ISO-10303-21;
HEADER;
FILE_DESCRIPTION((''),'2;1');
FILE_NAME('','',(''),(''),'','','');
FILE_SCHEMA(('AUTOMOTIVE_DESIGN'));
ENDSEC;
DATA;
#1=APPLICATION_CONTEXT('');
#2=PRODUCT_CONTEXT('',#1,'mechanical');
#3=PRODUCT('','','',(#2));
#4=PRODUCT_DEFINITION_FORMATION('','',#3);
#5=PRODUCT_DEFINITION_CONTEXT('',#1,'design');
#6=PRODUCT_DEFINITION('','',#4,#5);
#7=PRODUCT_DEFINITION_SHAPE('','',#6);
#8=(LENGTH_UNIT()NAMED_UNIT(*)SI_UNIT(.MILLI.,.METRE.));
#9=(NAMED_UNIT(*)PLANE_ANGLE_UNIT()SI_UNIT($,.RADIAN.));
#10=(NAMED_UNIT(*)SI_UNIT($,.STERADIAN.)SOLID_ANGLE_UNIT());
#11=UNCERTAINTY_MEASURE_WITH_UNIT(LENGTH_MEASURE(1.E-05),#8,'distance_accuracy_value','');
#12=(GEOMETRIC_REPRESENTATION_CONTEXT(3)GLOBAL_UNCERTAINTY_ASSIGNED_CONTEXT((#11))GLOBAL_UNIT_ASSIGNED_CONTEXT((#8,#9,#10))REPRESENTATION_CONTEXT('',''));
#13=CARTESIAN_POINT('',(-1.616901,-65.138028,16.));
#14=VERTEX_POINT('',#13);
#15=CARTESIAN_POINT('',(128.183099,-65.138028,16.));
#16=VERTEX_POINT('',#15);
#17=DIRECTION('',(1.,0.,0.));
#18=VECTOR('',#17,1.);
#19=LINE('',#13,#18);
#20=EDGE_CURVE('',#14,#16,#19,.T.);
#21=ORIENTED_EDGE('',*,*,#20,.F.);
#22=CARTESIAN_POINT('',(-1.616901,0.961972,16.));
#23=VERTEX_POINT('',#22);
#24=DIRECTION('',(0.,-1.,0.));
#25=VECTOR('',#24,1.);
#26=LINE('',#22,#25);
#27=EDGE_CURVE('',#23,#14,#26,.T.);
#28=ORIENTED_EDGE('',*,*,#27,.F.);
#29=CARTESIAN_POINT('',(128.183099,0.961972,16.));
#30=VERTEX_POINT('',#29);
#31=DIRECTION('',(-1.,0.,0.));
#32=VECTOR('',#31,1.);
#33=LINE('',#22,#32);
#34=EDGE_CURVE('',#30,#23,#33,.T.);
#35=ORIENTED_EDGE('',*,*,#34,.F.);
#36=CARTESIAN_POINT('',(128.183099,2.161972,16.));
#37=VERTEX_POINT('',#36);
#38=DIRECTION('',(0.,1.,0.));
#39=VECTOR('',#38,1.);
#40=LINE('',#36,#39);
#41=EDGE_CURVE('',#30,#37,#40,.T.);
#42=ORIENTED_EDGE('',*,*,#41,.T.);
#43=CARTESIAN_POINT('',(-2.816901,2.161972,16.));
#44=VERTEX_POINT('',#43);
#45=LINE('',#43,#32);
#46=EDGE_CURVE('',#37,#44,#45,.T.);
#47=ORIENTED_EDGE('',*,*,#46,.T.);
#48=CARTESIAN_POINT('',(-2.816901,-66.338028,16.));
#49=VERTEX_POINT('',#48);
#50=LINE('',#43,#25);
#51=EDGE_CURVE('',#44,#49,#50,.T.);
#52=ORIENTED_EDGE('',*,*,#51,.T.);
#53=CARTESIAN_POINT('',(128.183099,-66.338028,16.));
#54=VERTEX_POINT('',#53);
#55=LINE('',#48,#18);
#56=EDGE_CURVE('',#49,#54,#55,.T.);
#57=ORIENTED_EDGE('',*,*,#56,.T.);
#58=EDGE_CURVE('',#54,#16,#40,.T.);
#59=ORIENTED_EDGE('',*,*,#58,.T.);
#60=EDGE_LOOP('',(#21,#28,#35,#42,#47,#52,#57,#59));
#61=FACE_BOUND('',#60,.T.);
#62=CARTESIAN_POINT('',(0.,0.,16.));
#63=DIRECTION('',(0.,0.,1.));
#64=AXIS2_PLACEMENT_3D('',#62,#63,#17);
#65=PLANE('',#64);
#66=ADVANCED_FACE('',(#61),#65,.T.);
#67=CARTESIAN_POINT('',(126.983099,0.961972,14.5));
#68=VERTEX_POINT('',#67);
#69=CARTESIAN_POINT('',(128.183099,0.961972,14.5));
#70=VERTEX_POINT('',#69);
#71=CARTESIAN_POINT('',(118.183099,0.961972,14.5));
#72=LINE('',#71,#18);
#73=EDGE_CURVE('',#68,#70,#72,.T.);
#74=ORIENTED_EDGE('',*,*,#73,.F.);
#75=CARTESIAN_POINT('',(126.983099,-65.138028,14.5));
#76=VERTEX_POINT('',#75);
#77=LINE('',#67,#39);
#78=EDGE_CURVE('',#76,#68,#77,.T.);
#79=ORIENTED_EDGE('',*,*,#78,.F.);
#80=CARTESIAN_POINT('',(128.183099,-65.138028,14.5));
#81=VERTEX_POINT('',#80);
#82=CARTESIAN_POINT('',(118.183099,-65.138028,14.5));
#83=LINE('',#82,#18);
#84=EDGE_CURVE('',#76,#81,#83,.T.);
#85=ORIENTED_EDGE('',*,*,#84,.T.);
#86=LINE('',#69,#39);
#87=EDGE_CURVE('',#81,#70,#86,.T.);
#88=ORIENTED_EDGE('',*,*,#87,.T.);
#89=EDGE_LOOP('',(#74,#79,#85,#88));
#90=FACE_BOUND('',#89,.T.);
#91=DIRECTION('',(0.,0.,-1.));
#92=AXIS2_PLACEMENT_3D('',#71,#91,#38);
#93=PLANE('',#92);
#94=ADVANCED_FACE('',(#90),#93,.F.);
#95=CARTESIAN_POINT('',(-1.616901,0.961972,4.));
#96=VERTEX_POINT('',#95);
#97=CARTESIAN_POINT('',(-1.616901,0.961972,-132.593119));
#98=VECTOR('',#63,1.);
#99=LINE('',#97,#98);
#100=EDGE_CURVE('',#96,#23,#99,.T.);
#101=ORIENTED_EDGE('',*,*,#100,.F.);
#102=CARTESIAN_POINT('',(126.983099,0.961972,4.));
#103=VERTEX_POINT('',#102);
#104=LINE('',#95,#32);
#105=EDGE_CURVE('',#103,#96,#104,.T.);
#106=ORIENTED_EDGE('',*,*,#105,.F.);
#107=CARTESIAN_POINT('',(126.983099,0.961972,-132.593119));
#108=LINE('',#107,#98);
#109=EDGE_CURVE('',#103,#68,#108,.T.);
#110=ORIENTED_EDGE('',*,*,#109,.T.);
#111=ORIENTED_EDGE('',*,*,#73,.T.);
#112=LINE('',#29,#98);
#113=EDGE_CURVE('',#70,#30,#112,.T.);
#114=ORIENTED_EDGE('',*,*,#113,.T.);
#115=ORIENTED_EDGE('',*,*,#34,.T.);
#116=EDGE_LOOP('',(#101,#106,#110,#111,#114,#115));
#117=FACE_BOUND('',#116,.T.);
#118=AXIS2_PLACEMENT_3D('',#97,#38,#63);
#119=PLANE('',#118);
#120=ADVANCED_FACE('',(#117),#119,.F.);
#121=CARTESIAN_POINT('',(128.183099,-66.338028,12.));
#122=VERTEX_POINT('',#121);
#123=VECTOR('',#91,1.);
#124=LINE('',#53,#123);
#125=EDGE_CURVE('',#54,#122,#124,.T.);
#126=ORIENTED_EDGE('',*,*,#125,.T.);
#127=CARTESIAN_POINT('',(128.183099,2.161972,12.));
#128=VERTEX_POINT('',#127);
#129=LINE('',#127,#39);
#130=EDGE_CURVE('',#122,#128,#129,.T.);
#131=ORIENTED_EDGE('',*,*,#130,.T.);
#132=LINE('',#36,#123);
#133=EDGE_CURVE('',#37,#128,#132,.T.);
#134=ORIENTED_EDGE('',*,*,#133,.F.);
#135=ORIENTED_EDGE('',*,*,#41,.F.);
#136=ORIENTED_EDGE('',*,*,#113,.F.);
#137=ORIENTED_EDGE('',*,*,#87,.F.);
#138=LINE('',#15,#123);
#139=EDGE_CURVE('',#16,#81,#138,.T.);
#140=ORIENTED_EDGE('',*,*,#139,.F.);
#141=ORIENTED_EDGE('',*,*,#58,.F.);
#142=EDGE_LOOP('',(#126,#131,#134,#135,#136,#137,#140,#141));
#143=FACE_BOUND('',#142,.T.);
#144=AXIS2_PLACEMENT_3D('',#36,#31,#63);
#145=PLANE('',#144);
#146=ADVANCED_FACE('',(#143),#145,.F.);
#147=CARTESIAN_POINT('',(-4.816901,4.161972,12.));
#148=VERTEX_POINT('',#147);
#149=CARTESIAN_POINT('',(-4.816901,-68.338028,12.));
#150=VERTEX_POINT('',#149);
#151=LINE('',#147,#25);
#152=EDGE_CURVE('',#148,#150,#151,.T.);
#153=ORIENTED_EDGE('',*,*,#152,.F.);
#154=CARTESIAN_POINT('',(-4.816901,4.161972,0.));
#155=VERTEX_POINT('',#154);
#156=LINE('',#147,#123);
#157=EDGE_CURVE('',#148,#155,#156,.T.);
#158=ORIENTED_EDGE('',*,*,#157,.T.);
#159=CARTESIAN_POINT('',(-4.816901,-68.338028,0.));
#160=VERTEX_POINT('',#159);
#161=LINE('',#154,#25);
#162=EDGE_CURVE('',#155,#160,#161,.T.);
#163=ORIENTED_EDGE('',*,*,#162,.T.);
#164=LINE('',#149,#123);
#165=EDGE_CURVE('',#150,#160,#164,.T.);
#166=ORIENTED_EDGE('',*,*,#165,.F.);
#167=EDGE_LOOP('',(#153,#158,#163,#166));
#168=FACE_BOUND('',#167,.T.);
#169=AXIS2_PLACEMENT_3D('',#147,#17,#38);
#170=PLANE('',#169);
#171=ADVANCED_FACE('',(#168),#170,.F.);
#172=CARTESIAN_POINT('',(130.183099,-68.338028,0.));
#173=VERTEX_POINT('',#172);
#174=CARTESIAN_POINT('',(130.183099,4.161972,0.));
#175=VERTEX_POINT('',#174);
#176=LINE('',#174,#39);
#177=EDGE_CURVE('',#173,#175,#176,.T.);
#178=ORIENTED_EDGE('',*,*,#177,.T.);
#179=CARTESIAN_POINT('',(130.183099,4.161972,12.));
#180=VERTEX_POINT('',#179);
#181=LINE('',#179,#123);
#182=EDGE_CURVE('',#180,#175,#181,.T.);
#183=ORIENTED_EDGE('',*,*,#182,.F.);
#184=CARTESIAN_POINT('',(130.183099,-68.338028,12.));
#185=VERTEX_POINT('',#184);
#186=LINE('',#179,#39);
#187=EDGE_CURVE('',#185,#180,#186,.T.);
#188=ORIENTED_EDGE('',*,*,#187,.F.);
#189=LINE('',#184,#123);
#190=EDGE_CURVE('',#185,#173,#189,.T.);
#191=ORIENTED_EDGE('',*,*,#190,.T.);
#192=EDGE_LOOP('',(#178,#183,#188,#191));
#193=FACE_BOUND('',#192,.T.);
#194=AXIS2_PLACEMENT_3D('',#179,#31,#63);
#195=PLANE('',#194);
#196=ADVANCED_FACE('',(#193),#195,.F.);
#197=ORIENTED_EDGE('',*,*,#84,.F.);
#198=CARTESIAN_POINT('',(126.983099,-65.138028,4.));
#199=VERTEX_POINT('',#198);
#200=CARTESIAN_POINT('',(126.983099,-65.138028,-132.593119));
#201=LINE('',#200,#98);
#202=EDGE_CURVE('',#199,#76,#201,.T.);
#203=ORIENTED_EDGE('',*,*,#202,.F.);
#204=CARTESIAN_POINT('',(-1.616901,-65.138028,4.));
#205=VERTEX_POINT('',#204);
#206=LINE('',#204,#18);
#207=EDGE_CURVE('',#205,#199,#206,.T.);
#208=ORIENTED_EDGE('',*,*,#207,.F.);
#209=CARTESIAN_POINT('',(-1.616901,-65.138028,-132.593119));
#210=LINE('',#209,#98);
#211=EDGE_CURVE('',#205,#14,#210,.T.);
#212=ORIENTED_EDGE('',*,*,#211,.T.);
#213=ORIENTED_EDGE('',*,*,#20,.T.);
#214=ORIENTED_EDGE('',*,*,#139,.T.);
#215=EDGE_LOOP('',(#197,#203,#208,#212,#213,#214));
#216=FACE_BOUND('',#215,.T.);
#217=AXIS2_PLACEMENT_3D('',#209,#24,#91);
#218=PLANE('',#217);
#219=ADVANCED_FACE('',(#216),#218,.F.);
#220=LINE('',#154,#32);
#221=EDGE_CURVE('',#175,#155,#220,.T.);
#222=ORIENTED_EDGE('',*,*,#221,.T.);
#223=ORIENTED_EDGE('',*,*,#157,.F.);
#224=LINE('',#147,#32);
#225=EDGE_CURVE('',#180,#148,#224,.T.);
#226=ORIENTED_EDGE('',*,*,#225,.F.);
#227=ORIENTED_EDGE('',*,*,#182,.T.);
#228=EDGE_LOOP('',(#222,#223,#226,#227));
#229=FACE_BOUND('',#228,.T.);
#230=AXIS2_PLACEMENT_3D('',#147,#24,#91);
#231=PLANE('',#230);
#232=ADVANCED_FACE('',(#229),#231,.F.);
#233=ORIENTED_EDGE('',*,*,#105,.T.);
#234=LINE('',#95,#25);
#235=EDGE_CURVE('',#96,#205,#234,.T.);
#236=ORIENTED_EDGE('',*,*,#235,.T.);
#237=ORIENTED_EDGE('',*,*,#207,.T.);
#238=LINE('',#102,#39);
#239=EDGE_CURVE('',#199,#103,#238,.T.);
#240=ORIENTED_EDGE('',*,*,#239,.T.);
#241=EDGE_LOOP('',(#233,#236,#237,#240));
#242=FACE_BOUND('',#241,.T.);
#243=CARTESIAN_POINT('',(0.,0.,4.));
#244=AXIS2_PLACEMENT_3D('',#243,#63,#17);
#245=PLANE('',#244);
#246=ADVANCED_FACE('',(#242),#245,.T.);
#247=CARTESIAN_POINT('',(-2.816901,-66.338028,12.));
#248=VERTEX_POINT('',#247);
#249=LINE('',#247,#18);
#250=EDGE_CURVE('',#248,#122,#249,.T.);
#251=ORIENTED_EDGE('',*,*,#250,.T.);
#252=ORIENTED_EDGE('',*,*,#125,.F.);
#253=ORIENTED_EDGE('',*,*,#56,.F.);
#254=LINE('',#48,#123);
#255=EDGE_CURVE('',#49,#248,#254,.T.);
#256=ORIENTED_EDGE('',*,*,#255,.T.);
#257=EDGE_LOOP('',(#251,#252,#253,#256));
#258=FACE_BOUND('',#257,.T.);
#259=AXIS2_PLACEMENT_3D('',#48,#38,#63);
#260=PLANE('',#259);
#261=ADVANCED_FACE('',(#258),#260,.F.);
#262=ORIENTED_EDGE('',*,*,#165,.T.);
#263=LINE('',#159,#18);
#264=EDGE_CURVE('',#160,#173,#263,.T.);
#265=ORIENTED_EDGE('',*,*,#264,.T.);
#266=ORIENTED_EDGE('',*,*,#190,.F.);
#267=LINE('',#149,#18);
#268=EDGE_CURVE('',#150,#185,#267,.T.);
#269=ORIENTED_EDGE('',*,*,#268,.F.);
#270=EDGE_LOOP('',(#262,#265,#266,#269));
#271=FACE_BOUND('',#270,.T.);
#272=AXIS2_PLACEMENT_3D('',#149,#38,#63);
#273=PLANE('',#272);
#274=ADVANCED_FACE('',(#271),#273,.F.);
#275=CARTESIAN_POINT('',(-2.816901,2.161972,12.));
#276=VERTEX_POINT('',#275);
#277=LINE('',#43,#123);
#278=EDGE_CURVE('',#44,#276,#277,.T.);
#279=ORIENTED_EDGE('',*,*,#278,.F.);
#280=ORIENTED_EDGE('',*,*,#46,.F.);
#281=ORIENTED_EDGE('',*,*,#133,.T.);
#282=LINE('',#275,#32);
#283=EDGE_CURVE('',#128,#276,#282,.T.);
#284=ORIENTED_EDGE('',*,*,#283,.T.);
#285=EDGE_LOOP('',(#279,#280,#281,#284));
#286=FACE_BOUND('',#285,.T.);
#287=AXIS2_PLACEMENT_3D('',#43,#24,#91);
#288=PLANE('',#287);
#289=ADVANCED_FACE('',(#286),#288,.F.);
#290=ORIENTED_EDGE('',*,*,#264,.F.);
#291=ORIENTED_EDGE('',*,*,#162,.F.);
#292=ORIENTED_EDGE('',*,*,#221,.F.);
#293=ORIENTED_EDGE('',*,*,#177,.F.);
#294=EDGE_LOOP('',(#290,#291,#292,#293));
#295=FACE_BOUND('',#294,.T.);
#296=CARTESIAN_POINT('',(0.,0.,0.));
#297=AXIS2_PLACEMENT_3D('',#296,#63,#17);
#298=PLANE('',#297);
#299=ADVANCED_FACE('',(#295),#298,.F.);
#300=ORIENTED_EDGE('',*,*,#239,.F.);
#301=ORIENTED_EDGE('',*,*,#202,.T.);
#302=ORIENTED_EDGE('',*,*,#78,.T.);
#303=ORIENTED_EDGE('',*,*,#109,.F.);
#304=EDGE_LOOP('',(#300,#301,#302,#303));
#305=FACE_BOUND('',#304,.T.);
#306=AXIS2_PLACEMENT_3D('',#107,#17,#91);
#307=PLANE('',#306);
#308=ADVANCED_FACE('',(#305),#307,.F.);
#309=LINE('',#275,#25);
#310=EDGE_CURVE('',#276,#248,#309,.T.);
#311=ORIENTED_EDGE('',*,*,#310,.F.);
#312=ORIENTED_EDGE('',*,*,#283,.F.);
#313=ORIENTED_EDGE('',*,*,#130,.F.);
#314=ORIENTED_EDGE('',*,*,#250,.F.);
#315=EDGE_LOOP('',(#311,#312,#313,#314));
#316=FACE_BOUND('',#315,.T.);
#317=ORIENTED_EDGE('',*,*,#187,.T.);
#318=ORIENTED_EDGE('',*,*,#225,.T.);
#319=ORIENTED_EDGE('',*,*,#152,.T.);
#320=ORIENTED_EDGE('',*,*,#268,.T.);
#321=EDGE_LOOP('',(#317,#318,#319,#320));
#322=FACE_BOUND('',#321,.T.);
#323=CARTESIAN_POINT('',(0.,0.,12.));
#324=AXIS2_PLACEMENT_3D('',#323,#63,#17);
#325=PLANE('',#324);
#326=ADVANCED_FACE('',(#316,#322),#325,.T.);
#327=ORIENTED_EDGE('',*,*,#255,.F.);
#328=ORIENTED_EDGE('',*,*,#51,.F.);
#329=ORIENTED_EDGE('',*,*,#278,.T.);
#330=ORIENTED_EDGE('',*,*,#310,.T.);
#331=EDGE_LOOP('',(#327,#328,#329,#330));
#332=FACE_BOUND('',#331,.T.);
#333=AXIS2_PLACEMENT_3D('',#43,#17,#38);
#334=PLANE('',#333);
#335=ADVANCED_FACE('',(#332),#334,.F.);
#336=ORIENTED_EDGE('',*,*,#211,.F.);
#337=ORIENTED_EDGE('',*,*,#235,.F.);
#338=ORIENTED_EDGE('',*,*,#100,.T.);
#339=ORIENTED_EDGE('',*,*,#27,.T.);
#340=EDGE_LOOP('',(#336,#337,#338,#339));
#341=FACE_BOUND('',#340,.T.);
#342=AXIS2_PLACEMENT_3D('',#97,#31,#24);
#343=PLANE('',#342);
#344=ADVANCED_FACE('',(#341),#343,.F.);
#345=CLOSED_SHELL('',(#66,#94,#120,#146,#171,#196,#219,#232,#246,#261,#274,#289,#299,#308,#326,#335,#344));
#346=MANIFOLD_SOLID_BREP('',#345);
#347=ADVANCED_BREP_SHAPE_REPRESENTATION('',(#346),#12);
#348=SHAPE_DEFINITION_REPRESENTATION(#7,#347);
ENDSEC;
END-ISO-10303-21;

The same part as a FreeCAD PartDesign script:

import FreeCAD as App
import Part
import Sketcher
Q = App.Units.Quantity


def add_polygon(sketch, points):
    """Adds a closed chain of lines whose ends are joined by coincident constraints."""
    first, n = sketch.GeometryCount, len(points)
    for a, b in zip(points, points[1:] + points[:1]):
        sketch.addGeometry(Part.LineSegment(App.Vector(*a, 0), App.Vector(*b, 0)), False)
    for i in range(n):
        sketch.addConstraint(Sketcher.Constraint("Coincident", first + i, 2, first + (i + 1) % n, 1))

doc = App.newDocument("Part")
body = doc.addObject("PartDesign::Body", "Body")

sketch1 = body.newObject("Sketcher::SketchObject", "Sketch")
sketch1.AttachmentSupport = (doc.getObject("XY_Plane"), [""])
sketch1.MapMode = "FlatFace"
add_polygon(sketch1, [(-5, 4), (-5, -68), (130, -68), (130, 4)])
sketch1.addConstraint([
    Sketcher.Constraint("Vertical", 0),
    Sketcher.Constraint("Horizontal", 1),
    Sketcher.Constraint("Vertical", 2),
    Sketcher.Constraint("Horizontal", 3),
    Sketcher.Constraint("DistanceX", 1, 1, 1, 2, Q("135 mm")),
    Sketcher.Constraint("DistanceY", 0, 2, 0, 1, Q("72.5 mm")),
    Sketcher.Constraint("DistanceX", 0, 2, -1, 1, Q("4.816901 mm")),
    Sketcher.Constraint("DistanceY", 0, 2, -1, 1, Q("68.338028 mm")),
])
pad1 = body.newObject("PartDesign::Pad", "Pad")
pad1.Profile = sketch1
pad1.Length = 12

sketch2 = body.newObject("Sketcher::SketchObject", "Sketch001")
sketch2.AttachmentSupport = (doc.getObject("XY_Plane"), [""])
sketch2.MapMode = "FlatFace"
sketch2.AttachmentOffset = App.Placement(App.Vector(0, 0, 12), App.Rotation())
add_polygon(sketch2, [(-3, 2), (-3, -66), (128, -66), (128, 2)])
sketch2.addConstraint([
    Sketcher.Constraint("Vertical", 0),
    Sketcher.Constraint("Horizontal", 1),
    Sketcher.Constraint("Vertical", 2),
    Sketcher.Constraint("Horizontal", 3),
    Sketcher.Constraint("DistanceX", 1, 1, 1, 2, Q("131 mm")),
    Sketcher.Constraint("DistanceY", 0, 2, 0, 1, Q("68.5 mm")),
    Sketcher.Constraint("DistanceX", 0, 2, -1, 1, Q("2.816901 mm")),
    Sketcher.Constraint("DistanceY", 0, 2, -1, 1, Q("66.338028 mm")),
])
pad2 = body.newObject("PartDesign::Pad", "Pad001")
pad2.Profile = sketch2
pad2.Length = 4

sketch3 = body.newObject("Sketcher::SketchObject", "Sketch002")
sketch3.AttachmentSupport = (doc.getObject("XY_Plane"), [""])
sketch3.MapMode = "FlatFace"
sketch3.AttachmentOffset = App.Placement(App.Vector(0, 0, 16), App.Rotation())
add_polygon(sketch3, [(-2, 1), (-2, -65), (127, -65), (127, 1)])
sketch3.addConstraint([
    Sketcher.Constraint("Vertical", 0),
    Sketcher.Constraint("Horizontal", 1),
    Sketcher.Constraint("Vertical", 2),
    Sketcher.Constraint("Horizontal", 3),
    Sketcher.Constraint("DistanceX", 1, 1, 1, 2, Q("128.6 mm")),
    Sketcher.Constraint("DistanceY", 0, 2, 0, 1, Q("66.1 mm")),
    Sketcher.Constraint("DistanceX", 0, 2, -1, 1, Q("1.616901 mm")),
    Sketcher.Constraint("DistanceY", 0, 2, -1, 1, Q("65.138028 mm")),
])
pocket1 = body.newObject("PartDesign::Pocket", "Pocket")
pocket1.Profile = sketch3
pocket1.Length = 4

sketch4 = body.newObject("Sketcher::SketchObject", "Sketch003")
sketch4.AttachmentSupport = (doc.getObject("XY_Plane"), [""])
sketch4.MapMode = "FlatFace"
sketch4.AttachmentOffset = App.Placement(App.Vector(0, 0, 12), App.Rotation())
add_polygon(sketch4, [(-2, 1), (-2, -65), (127, -65), (127, 1)])
sketch4.addConstraint([
    Sketcher.Constraint("Vertical", 0),
    Sketcher.Constraint("Horizontal", 1),
    Sketcher.Constraint("Vertical", 2),
    Sketcher.Constraint("Horizontal", 3),
    Sketcher.Constraint("DistanceX", 1, 1, 1, 2, Q("128.6 mm")),
    Sketcher.Constraint("DistanceY", 0, 2, 0, 1, Q("66.1 mm")),
    Sketcher.Constraint("DistanceX", 0, 2, -1, 1, Q("1.616901 mm")),
    Sketcher.Constraint("DistanceY", 0, 2, -1, 1, Q("65.138028 mm")),
])
pocket2 = body.newObject("PartDesign::Pocket", "Pocket001")
pocket2.Profile = sketch4
pocket2.Length = 8

sketch5 = body.newObject("Sketcher::SketchObject", "Sketch004")
sketch5.AttachmentSupport = (doc.getObject("YZ_Plane"), [""])
sketch5.MapMode = "FlatFace"
sketch5.AttachmentOffset = App.Placement(App.Vector(0, 0, 128.183099), App.Rotation())
add_polygon(sketch5, [(1, 16), (-65.1, 16), (-65.1, 14.5), (1, 14.5)])
sketch5.addConstraint([
    Sketcher.Constraint("Horizontal", 0),
    Sketcher.Constraint("Vertical", 1),
    Sketcher.Constraint("Horizontal", 2),
    Sketcher.Constraint("Vertical", 3),
    Sketcher.Constraint("DistanceX", 0, 2, 0, 1, Q("66.1 mm")),
    Sketcher.Constraint("DistanceY", 1, 2, 1, 1, Q("1.5 mm")),
    Sketcher.Constraint("DistanceY", -1, 1, 0, 2, Q("16 mm")),
    Sketcher.Constraint("DistanceX", 0, 2, -1, 1, Q("65.138028 mm")),
])
pocket3 = body.newObject("PartDesign::Pocket", "Pocket002")
pocket3.Profile = sketch5
pocket3.Length = 10

doc.recompute()
